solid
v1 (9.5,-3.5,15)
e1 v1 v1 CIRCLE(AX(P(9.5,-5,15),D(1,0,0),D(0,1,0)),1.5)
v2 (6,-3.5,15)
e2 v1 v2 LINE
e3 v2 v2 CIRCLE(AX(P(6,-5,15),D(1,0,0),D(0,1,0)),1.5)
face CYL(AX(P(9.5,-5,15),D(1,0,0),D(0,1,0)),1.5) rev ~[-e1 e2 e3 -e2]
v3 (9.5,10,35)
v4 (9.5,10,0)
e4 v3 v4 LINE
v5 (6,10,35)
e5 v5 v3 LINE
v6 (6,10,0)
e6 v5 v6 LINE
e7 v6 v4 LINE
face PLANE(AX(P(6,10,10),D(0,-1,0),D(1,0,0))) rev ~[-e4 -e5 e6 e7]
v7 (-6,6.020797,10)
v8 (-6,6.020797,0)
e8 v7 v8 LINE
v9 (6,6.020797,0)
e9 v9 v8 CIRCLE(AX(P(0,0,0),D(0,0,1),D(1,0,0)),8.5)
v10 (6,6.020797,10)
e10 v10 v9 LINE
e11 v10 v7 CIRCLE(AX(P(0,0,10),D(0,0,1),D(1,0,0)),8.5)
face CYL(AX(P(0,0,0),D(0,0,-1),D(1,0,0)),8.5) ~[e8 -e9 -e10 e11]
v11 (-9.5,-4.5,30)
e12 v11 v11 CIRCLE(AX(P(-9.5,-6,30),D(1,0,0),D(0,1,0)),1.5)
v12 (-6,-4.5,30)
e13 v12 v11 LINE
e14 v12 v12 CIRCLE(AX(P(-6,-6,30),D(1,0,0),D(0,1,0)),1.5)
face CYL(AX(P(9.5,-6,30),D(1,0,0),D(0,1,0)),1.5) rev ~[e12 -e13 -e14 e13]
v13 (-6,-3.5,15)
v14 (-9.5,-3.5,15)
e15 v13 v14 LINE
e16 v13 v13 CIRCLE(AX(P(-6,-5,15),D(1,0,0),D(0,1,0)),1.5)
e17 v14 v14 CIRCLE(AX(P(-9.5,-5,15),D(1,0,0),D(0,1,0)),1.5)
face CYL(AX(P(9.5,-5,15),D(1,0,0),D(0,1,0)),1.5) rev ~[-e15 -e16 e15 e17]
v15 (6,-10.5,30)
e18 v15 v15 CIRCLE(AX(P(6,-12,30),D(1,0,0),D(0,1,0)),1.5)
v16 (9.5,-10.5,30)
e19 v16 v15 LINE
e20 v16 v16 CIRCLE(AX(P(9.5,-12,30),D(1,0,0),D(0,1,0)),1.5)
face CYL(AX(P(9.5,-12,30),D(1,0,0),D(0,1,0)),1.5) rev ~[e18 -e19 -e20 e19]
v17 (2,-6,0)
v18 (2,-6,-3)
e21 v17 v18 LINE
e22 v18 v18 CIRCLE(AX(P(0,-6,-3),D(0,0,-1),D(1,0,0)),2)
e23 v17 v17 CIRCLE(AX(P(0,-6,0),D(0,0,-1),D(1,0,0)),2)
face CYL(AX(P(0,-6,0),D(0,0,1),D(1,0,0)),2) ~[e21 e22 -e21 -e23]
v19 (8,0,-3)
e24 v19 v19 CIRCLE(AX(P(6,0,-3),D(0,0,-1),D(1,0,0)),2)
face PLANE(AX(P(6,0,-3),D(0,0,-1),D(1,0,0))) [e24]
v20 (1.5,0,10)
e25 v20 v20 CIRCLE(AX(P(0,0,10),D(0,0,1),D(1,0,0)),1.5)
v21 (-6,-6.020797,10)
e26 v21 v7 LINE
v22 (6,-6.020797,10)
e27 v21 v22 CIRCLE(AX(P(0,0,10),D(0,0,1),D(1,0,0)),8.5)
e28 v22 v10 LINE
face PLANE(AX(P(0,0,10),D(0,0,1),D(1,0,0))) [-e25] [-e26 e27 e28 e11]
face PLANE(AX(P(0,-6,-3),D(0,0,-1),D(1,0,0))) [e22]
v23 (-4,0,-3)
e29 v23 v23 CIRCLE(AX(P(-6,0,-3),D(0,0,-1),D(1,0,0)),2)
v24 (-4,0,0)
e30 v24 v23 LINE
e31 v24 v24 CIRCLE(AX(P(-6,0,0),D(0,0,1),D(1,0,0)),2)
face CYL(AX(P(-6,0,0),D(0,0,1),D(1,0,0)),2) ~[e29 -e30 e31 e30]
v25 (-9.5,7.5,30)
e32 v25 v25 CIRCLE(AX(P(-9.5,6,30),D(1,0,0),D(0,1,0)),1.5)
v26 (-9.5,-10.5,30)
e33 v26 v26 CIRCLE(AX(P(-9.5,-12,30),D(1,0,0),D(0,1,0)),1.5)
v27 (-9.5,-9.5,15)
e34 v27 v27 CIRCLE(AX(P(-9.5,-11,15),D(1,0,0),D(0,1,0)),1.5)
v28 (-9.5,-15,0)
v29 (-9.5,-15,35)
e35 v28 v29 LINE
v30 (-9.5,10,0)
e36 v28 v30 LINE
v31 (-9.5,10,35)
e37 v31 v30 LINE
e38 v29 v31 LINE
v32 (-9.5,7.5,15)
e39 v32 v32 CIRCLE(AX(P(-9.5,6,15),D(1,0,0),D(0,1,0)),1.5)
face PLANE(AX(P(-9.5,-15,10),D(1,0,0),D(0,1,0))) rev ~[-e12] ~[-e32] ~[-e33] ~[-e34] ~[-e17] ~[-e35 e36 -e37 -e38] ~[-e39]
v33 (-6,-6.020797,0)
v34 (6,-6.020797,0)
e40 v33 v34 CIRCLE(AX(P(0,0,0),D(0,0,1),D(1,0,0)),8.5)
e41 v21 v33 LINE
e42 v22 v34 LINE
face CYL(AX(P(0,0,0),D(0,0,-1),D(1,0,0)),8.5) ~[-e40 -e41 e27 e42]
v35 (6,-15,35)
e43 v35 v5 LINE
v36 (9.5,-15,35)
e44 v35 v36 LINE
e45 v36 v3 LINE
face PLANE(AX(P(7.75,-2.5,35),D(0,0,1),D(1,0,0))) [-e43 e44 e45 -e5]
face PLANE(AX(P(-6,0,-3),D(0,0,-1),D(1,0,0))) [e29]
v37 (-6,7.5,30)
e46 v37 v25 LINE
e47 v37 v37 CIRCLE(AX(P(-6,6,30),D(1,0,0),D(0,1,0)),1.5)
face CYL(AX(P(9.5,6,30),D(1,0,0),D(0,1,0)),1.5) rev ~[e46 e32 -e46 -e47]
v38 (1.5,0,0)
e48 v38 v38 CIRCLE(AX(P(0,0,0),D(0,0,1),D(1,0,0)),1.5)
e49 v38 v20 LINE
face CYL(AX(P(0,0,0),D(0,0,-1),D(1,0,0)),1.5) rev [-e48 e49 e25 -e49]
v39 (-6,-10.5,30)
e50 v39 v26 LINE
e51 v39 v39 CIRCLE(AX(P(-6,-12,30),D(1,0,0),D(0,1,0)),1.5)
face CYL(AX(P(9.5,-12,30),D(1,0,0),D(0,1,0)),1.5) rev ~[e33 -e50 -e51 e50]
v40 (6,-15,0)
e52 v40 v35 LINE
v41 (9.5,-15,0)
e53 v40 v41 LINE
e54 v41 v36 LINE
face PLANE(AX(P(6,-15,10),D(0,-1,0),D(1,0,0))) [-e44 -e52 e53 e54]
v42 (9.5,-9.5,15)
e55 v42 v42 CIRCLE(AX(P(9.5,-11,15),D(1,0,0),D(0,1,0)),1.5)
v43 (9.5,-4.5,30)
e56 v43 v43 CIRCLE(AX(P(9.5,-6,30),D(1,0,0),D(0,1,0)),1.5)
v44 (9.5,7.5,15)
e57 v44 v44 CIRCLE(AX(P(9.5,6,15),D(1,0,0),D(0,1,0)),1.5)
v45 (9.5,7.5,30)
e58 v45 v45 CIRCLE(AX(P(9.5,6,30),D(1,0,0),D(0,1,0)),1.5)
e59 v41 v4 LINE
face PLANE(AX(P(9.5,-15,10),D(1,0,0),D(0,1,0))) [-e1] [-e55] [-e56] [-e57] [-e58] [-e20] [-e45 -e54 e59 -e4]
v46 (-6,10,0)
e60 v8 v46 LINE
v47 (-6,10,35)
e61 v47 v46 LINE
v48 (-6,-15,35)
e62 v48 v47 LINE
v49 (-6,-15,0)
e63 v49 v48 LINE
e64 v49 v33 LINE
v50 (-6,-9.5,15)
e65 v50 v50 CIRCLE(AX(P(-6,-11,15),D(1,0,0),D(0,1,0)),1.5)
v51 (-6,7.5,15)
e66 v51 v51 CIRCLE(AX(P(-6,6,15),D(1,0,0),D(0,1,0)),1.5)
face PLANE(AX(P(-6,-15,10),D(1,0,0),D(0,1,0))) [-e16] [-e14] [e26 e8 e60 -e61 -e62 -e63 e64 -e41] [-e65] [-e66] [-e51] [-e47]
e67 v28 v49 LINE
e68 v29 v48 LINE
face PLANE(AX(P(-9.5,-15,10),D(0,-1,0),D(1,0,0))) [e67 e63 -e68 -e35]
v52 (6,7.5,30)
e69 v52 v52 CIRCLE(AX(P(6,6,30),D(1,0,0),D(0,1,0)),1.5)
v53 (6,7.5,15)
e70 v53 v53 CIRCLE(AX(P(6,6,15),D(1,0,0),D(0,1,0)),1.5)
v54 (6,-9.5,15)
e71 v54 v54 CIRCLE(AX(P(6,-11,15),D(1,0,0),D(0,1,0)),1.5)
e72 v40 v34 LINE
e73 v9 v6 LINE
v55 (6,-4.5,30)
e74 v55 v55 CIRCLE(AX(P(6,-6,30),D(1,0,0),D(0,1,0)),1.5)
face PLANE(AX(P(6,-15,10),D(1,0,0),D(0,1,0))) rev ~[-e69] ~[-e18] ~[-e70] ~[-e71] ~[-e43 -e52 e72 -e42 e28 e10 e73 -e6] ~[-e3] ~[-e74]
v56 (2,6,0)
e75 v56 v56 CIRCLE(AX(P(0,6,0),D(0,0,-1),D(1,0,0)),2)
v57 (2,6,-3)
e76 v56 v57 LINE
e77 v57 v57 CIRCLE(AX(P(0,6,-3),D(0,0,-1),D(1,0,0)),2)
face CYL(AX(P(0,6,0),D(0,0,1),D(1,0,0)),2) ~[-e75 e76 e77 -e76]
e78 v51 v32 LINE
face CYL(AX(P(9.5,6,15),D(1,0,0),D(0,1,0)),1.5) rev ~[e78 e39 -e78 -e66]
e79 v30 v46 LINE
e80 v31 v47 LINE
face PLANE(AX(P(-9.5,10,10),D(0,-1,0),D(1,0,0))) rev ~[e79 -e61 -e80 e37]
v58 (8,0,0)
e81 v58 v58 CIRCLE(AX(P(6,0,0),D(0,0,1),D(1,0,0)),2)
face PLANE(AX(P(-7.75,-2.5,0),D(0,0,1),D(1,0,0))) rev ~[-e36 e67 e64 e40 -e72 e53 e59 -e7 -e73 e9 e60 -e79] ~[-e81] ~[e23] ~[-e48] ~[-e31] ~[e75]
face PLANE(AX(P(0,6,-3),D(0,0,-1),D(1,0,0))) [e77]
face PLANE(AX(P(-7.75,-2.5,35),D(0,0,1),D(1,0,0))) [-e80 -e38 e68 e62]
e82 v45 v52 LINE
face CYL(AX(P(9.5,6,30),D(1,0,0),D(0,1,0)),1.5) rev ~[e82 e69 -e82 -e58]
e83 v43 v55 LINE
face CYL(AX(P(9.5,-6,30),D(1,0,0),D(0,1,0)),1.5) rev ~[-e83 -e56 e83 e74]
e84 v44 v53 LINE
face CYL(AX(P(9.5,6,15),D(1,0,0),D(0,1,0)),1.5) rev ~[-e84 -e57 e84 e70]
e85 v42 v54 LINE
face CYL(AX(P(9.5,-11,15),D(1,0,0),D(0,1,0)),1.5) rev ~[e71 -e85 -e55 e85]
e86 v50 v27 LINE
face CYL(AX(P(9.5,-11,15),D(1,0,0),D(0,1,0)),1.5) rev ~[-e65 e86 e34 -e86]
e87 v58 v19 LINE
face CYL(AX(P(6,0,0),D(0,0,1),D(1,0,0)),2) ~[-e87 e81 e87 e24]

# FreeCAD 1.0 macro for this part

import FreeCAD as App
import Part
import Sketcher

V = App.Vector
Q = App.Units.Quantity


def add_polygon(sketch, points):
    """Adds a closed chain of lines whose ends are joined by coincident constraints."""
    first, n = sketch.GeometryCount, len(points)
    for a, b in zip(points, points[1:] + points[:1]):
        sketch.addGeometry(Part.LineSegment(App.Vector(*a, 0), App.Vector(*b, 0)), False)
    for i in range(n):
        sketch.addConstraint(Sketcher.Constraint("Coincident", first + i, 2, first + (i + 1) % n, 1))

doc = App.newDocument("Part")
params = doc.addObject("Spreadsheet::Sheet", "Params")
for row, (alias, value) in enumerate([
    ("sketch1_diameter", "17 mm"),
    ("sketch1_diameter2", "3 mm"),
    ("pad1_length", "10 mm"),
    ("sketch2_diameter", "4 mm"),
    ("pad2_length", "3 mm"),
    ("sketch3_height", "25 mm"),
    ("sketch3_width", "3.5 mm"),
    ("pad3_length", "25 mm"),
    ("pad3_length2", "10 mm"),
    ("sketch4_diameter", "3 mm"),
], start=1):
    params.set(f"A{row}", alias)
    params.set(f"B{row}", "=" + value)
    params.setAlias(f"B{row}", alias)

body = doc.addObject("PartDesign::Body", "Body")

# Sketch on XY plane
sketch1 = body.newObject("Sketcher::SketchObject", "Sketch")
sketch1.AttachmentSupport = (doc.getObject("XY_Plane"), [""])
sketch1.MapMode = "FlatFace"
sketch1.addGeometry([
    Part.Circle(V(0, 0, 0), V(0, 0, 1), 8.5),
    Part.Circle(V(0, 0, 0), V(0, 0, 1), 1.5),
], False)
sketch1.addConstraint([
    Sketcher.Constraint("Coincident", 0, 3, -1, 1),
    Sketcher.Constraint("Coincident", 1, 3, -1, 1),
    Sketcher.Constraint("Diameter", 0, Q("17 mm")),
    Sketcher.Constraint("Diameter", 1, Q("3 mm")),
])
sketch1.setExpression("Constraints[2]", "Params.sketch1_diameter")
sketch1.setExpression("Constraints[3]", "Params.sketch1_diameter2")
pad1 = body.newObject("PartDesign::Pad", "Pad")
pad1.Profile = sketch1
pad1.setExpression("Length", "Params.pad1_length")

# Sketch on XY plane
sketch2 = body.newObject("Sketcher::SketchObject", "Sketch001")
sketch2.AttachmentSupport = (doc.getObject("XY_Plane"), [""])
sketch2.MapMode = "FlatFace"
sketch2.addGeometry([
    Part.Circle(V(0, 6, 0), V(0, 0, 1), 2),
    Part.Circle(V(6, 0, 0), V(0, 0, 1), 2),
    Part.Circle(V(0, -6, 0), V(0, 0, 1), 2),
    Part.Circle(V(-6, 0, 0), V(0, 0, 1), 2),
], False)
sketch2.addConstraint([
    Sketcher.Constraint("Equal", 0, 1),
    Sketcher.Constraint("Equal", 1, 2),
    Sketcher.Constraint("Equal", 2, 3),
    Sketcher.Constraint("Symmetric", 0, 3, 2, 3, -1, 1),
    Sketcher.Constraint("Symmetric", 1, 3, 3, 3, -1, 1),
    Sketcher.Constraint("PointOnObject", 0, 3, -2),
    Sketcher.Constraint("PointOnObject", 1, 3, -1),
    Sketcher.Constraint("Diameter", 0, Q("4 mm")),
    Sketcher.Constraint("DistanceY", -1, 1, 0, 3, Q("6 mm")),
    Sketcher.Constraint("DistanceX", -1, 1, 1, 3, Q("6 mm")),
])
sketch2.setExpression("Constraints[7]", "Params.sketch2_diameter")
pad2 = body.newObject("PartDesign::Pad", "Pad001")
pad2.Profile = sketch2
pad2.setExpression("Length", "Params.pad2_length")
pad2.Reversed = True

# Sketch on XY plane
sketch3 = body.newObject("Sketcher::SketchObject", "Sketch002")
sketch3.AttachmentSupport = (doc.getObject("XY_Plane"), [""])
sketch3.MapMode = "FlatFace"
sketch3.AttachmentOffset = App.Placement(V(0, 0, 10), App.Rotation())
add_polygon(sketch3, [(-9.5, 10), (-9.5, -15), (-6, -15), (-6, 10)])  # lines 0-3
add_polygon(sketch3, [(6, 10), (6, -15), (9.5, -15), (9.5, 10)])  # lines 4-7
sketch3.addConstraint([
    Sketcher.Constraint("Vertical", 0),
    Sketcher.Constraint("Horizontal", 1),
    Sketcher.Constraint("Vertical", 2),
    Sketcher.Constraint("Horizontal", 3),
    Sketcher.Constraint("Vertical", 4),
    Sketcher.Constraint("Horizontal", 5),
    Sketcher.Constraint("Vertical", 6),
    Sketcher.Constraint("Horizontal", 7),
    Sketcher.Constraint("Symmetric", 1, 2, 4, 2, -2),
    Sketcher.Constraint("Symmetric", 3, 2, 6, 2, -2),
    Sketcher.Constraint("DistanceY", 0, 2, 0, 1, Q("25 mm")),
    Sketcher.Constraint("DistanceX", 1, 1, 1, 2, Q("3.5 mm")),
    Sketcher.Constraint("DistanceY", 0, 2, -1, 1, Q("15 mm")),
    Sketcher.Constraint("DistanceX", 1, 2, -1, 1, Q("6 mm")),
])
sketch3.setExpression("Constraints[18]", "Params.sketch3_height")
sketch3.setExpression("Constraints[19]", "Params.sketch3_width")
pad3 = body.newObject("PartDesign::Pad", "Pad002")
pad3.Profile = sketch3
pad3.Type = "TwoLengths"
pad3.setExpression("Length", "Params.pad3_length")
pad3.setExpression("Length2", "Params.pad3_length2")

# Sketch on YZ plane
sketch4 = body.newObject("Sketcher::SketchObject", "Sketch003")
sketch4.AttachmentSupport = (doc.getObject("YZ_Plane"), [""])
sketch4.MapMode = "FlatFace"
sketch4.AttachmentOffset = App.Placement(V(0, 0, 9.5), App.Rotation())
sketch4.addGeometry([
    Part.Circle(V(-11, 15, 0), V(0, 0, 1), 1.5),  # 0
    Part.Circle(V(-5, 15, 0), V(0, 0, 1), 1.5),  # 1
    Part.Circle(V(-12, 30, 0), V(0, 0, 1), 1.5),  # 2
    Part.Circle(V(-6, 30, 0), V(0, 0, 1), 1.5),  # 3
    Part.Circle(V(6, 30, 0), V(0, 0, 1), 1.5),  # 4
    Part.Circle(V(6, 15, 0), V(0, 0, 1), 1.5),  # 5
], False)
sketch4.addConstraint([
    Sketcher.Constraint("Equal", 0, 1),
    Sketcher.Constraint("Equal", 1, 2),
    Sketcher.Constraint("Equal", 2, 3),
    Sketcher.Constraint("Equal", 3, 4),
    Sketcher.Constraint("Equal", 4, 5),
    Sketcher.Constraint("Symmetric", 3, 3, 4, 3, -2),
    Sketcher.Constraint("Horizontal", 0, 3, 1, 3),
    Sketcher.Constraint("Horizontal", 2, 3, 3, 3),
    Sketcher.Constraint("Horizontal", 1, 3, 5, 3),
    Sketcher.Constraint("Vertical", 4, 3, 5, 3),
    Sketcher.Constraint("Diameter", 0, Q("3 mm")),
    Sketcher.Constraint("DistanceX", 0, 3, -1, 1, Q("11 mm")),
    Sketcher.Constraint("DistanceY", -1, 1, 0, 3, Q("15 mm")),
    Sketcher.Constraint("DistanceX", 1, 3, -1, 1, Q("5 mm")),
    Sketcher.Constraint("DistanceX", 2, 3, -1, 1, Q("12 mm")),
    Sketcher.Constraint("DistanceY", -1, 1, 2, 3, Q("30 mm")),
    Sketcher.Constraint("DistanceX", 3, 3, -1, 1, Q("6 mm")),
])
sketch4.setExpression("Constraints[10]", "Params.sketch4_diameter")
pocket1 = body.newObject("PartDesign::Pocket", "Pocket")
pocket1.Profile = sketch4
pocket1.Type = "ThroughAll"

doc.recompute()
